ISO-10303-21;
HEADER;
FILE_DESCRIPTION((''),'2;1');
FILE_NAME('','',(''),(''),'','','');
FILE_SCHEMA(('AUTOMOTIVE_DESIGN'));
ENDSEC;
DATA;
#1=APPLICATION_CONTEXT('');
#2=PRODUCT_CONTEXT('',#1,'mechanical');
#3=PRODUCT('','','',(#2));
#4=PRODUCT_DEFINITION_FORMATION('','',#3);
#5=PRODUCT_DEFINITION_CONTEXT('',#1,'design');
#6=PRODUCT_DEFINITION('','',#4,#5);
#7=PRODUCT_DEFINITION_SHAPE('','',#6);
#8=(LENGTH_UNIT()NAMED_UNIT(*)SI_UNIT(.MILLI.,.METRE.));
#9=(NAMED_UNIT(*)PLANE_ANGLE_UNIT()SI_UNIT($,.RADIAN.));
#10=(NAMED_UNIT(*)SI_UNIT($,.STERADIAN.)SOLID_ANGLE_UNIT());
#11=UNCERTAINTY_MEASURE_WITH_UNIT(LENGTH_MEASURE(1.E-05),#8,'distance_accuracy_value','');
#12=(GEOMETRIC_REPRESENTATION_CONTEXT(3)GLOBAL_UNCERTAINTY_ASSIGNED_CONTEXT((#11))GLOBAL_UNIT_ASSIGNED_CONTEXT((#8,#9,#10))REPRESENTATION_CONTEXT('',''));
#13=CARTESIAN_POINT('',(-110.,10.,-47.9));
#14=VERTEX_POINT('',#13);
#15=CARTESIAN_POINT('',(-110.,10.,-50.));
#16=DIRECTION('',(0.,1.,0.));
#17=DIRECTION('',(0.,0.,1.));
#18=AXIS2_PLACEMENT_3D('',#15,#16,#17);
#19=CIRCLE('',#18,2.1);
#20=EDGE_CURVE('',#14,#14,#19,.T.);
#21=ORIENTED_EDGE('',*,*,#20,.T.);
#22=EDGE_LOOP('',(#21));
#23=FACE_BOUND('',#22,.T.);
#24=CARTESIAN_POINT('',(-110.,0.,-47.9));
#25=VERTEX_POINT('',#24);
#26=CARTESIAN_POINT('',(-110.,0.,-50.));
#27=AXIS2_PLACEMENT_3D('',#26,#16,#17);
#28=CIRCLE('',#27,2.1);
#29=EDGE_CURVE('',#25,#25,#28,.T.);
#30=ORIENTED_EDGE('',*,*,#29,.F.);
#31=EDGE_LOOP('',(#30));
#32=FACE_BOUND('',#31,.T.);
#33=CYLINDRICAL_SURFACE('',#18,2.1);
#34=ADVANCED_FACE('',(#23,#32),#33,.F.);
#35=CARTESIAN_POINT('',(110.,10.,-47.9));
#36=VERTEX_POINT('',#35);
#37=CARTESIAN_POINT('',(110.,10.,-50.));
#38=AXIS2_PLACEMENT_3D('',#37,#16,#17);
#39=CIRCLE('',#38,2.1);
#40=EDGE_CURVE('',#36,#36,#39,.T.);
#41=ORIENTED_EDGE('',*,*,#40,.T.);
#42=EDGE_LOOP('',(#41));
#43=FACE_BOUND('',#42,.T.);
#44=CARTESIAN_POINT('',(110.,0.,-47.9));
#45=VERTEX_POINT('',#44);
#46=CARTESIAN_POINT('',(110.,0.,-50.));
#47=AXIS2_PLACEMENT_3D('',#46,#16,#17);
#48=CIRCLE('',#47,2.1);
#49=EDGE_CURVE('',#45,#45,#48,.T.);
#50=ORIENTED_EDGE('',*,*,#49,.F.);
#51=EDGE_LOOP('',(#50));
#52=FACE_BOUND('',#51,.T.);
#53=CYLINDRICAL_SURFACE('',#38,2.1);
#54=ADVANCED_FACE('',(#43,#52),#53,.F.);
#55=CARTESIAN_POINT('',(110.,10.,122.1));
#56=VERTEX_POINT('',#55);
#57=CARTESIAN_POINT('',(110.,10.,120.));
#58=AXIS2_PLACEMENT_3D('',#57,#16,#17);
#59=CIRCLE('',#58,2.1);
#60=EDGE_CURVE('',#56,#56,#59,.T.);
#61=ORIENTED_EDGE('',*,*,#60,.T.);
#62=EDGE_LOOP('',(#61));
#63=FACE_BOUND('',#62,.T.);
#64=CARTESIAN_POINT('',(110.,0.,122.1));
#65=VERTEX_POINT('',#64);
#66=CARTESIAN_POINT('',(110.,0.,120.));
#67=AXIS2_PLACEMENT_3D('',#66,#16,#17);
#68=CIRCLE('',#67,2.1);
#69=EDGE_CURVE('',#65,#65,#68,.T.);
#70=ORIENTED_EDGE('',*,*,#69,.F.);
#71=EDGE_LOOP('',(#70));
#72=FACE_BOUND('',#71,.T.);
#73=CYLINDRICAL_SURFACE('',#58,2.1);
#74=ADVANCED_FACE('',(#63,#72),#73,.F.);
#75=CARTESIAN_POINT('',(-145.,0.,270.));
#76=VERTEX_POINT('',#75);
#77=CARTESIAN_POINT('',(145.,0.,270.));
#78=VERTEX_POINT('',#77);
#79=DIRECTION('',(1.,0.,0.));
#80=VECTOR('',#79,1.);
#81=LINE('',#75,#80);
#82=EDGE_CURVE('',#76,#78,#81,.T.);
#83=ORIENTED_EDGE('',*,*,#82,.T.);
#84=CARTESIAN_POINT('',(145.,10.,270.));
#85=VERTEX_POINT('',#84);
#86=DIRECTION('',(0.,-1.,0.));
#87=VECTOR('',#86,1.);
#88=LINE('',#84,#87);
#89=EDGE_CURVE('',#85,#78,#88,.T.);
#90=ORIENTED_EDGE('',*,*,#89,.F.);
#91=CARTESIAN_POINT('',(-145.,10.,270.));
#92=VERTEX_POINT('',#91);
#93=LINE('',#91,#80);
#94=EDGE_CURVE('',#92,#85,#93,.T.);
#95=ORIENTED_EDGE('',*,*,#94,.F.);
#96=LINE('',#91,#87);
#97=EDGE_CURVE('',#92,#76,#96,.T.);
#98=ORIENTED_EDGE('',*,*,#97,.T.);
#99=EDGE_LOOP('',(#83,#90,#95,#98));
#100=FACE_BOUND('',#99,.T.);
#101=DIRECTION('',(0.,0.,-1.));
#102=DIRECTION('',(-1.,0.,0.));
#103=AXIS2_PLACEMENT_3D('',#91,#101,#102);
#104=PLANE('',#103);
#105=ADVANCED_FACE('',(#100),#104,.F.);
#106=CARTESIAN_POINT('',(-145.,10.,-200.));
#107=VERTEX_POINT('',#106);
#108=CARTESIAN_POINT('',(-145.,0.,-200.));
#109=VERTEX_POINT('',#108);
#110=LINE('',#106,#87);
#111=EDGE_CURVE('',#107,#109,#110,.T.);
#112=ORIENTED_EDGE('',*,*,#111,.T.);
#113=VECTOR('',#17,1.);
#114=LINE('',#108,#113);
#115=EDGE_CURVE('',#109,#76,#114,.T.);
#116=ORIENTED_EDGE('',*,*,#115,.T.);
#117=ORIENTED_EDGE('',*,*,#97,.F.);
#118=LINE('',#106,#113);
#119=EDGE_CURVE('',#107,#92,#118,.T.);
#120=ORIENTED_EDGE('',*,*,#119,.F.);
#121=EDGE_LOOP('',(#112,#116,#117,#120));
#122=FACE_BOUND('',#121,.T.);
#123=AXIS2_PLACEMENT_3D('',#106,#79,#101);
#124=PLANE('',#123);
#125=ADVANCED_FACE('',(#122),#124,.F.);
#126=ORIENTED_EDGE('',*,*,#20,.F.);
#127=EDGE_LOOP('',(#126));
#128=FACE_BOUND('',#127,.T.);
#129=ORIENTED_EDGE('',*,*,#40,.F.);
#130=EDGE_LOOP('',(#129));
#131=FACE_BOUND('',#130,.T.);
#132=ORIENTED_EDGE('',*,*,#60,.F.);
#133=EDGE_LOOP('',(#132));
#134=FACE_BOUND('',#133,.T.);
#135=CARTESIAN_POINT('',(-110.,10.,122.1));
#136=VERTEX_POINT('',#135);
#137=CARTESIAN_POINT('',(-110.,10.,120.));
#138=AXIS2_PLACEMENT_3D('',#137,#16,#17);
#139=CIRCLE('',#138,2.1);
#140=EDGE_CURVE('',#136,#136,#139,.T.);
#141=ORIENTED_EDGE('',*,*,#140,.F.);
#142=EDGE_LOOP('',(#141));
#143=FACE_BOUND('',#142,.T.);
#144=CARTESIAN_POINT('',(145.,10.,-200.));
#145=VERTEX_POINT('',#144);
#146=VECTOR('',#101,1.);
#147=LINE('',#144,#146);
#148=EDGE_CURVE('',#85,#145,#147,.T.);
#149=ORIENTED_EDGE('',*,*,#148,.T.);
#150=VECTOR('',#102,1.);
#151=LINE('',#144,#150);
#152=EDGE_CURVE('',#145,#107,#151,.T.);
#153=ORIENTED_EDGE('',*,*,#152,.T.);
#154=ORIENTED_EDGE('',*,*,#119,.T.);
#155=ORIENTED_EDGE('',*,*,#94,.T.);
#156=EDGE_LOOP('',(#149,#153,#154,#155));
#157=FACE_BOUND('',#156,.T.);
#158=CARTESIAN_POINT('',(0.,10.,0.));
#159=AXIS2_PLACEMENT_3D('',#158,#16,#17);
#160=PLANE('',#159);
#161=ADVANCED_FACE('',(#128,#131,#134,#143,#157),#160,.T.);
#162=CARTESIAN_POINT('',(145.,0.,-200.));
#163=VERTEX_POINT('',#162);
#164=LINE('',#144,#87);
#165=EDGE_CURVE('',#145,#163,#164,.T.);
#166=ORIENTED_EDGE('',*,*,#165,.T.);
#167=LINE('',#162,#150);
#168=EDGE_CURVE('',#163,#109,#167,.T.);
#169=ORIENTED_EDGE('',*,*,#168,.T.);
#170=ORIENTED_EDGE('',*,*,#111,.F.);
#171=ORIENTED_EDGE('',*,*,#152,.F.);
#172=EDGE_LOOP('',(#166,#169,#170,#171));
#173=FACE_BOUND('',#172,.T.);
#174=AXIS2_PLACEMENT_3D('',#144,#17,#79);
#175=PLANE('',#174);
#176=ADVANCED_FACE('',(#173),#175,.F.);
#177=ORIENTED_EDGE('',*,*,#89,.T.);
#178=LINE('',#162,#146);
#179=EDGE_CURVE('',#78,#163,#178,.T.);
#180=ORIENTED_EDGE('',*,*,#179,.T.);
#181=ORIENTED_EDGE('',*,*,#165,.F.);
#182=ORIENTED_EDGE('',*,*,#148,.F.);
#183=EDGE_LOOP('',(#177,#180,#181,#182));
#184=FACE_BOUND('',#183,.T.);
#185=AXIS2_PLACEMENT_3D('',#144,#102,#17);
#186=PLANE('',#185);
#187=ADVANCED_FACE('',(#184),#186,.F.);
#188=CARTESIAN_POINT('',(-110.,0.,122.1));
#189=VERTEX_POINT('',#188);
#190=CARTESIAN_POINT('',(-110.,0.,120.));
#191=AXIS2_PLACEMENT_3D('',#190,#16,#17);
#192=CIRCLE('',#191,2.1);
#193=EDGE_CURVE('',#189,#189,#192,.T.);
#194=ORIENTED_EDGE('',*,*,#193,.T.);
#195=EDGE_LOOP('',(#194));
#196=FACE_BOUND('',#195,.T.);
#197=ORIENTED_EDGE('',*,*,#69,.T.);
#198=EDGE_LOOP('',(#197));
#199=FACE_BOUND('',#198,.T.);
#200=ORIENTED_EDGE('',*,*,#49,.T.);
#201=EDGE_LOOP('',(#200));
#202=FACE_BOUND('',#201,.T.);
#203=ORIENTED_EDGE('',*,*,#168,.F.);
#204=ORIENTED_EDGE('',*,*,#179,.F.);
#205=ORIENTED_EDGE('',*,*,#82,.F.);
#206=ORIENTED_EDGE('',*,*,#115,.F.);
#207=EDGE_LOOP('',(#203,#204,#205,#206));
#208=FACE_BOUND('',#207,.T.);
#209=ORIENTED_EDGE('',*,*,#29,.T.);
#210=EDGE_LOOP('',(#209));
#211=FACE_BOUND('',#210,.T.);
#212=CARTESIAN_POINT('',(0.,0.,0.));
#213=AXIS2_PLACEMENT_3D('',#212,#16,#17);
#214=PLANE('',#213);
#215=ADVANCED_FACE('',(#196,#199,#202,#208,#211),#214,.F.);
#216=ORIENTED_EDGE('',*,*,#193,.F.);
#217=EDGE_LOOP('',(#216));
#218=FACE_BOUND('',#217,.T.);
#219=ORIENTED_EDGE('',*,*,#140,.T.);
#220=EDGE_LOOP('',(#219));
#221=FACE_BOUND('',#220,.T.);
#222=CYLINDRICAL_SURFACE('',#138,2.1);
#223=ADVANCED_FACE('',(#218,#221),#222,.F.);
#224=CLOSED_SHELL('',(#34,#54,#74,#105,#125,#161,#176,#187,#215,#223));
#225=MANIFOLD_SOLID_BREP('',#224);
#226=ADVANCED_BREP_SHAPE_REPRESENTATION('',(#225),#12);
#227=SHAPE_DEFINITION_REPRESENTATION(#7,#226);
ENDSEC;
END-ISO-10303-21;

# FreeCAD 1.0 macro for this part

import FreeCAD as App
import Part
import Sketcher
from FreeCAD import Vector


def add_polygon(sketch, points):
    """Adds a closed chain of lines whose ends are joined by coincident constraints."""
    first, n = sketch.GeometryCount, len(points)
    for a, b in zip(points, points[1:] + points[:1]):
        sketch.addGeometry(Part.LineSegment(App.Vector(*a, 0), App.Vector(*b, 0)), False)
    for i in range(n):
        sketch.addConstraint(Sketcher.Constraint("Coincident", first + i, 2, first + (i + 1) % n, 1))

doc = App.newDocument("Part")
body = doc.addObject("PartDesign::Body", "Body")

sketch1 = doc.addObject("Sketcher::SketchObject", "Sketch")
body.addObject(sketch1)
sketch1.AttachmentSupport = (doc.XZ_Plane, [""])
sketch1.MapMode = "FlatFace"
add_polygon(sketch1, [(-145, -200), (-145, 270), (145, 270), (145, -200)])
sketch1.addConstraint([
    Sketcher.Constraint("Vertical", 0),
    Sketcher.Constraint("Horizontal", 1),
    Sketcher.Constraint("Vertical", 2),
    Sketcher.Constraint("Horizontal", 3),
    Sketcher.Constraint("DistanceX", 1, 1, 1, 2, 290.0),
    Sketcher.Constraint("DistanceY", 0, 1, 0, 2, 470.0),
    Sketcher.Constraint("DistanceX", 0, 2, -1, 1, 145.0),
    Sketcher.Constraint("DistanceY", -1, 1, 0, 2, 270.0),
])
pad1 = doc.addObject("PartDesign::Pad", "Pad")
body.addObject(pad1)
pad1.Profile = sketch1
pad1.Length = 10
pad1.Reversed = True

sketch2 = doc.addObject("Sketcher::SketchObject", "Sketch001")
body.addObject(sketch2)
sketch2.AttachmentSupport = (doc.XZ_Plane, [""])
sketch2.MapMode = "FlatFace"
sketch2.AttachmentOffset = App.Placement(Vector(0, 0, -10), App.Rotation())
sketch2.addGeometry([
    Part.Circle(Vector(-110, -50, 0), Vector(0, 0, 1), 2.1),
    Part.Circle(Vector(110, -50, 0), Vector(0, 0, 1), 2.1),
    Part.Circle(Vector(110, 120, 0), Vector(0, 0, 1), 2.1),
    Part.Circle(Vector(-110, 120, 0), Vector(0, 0, 1), 2.1),
], False)
sketch2.addConstraint([
    Sketcher.Constraint("Equal", 0, 1),
    Sketcher.Constraint("Equal", 1, 2),
    Sketcher.Constraint("Equal", 2, 3),
    Sketcher.Constraint("Symmetric", 0, 3, 1, 3, -2),
    Sketcher.Constraint("Symmetric", 2, 3, 3, 3, -2),
    Sketcher.Constraint("Vertical", 1, 3, 2, 3),
    Sketcher.Constraint("Diameter", 0, 4.2),
    Sketcher.Constraint("DistanceX", 0, 3, -1, 1, 110.0),
    Sketcher.Constraint("DistanceY", 0, 3, -1, 1, 50.0),
    Sketcher.Constraint("DistanceY", -1, 1, 2, 3, 120.0),
])
doc.recompute()
hole = doc.addObject("PartDesign::Hole", "Hole")
body.addObject(hole)
hole.Profile = sketch2
hole.ThreadType = "None"
hole.Diameter = 4.2
hole.DepthType = "ThroughAll"
hole.Reversed = True

doc.recompute()
